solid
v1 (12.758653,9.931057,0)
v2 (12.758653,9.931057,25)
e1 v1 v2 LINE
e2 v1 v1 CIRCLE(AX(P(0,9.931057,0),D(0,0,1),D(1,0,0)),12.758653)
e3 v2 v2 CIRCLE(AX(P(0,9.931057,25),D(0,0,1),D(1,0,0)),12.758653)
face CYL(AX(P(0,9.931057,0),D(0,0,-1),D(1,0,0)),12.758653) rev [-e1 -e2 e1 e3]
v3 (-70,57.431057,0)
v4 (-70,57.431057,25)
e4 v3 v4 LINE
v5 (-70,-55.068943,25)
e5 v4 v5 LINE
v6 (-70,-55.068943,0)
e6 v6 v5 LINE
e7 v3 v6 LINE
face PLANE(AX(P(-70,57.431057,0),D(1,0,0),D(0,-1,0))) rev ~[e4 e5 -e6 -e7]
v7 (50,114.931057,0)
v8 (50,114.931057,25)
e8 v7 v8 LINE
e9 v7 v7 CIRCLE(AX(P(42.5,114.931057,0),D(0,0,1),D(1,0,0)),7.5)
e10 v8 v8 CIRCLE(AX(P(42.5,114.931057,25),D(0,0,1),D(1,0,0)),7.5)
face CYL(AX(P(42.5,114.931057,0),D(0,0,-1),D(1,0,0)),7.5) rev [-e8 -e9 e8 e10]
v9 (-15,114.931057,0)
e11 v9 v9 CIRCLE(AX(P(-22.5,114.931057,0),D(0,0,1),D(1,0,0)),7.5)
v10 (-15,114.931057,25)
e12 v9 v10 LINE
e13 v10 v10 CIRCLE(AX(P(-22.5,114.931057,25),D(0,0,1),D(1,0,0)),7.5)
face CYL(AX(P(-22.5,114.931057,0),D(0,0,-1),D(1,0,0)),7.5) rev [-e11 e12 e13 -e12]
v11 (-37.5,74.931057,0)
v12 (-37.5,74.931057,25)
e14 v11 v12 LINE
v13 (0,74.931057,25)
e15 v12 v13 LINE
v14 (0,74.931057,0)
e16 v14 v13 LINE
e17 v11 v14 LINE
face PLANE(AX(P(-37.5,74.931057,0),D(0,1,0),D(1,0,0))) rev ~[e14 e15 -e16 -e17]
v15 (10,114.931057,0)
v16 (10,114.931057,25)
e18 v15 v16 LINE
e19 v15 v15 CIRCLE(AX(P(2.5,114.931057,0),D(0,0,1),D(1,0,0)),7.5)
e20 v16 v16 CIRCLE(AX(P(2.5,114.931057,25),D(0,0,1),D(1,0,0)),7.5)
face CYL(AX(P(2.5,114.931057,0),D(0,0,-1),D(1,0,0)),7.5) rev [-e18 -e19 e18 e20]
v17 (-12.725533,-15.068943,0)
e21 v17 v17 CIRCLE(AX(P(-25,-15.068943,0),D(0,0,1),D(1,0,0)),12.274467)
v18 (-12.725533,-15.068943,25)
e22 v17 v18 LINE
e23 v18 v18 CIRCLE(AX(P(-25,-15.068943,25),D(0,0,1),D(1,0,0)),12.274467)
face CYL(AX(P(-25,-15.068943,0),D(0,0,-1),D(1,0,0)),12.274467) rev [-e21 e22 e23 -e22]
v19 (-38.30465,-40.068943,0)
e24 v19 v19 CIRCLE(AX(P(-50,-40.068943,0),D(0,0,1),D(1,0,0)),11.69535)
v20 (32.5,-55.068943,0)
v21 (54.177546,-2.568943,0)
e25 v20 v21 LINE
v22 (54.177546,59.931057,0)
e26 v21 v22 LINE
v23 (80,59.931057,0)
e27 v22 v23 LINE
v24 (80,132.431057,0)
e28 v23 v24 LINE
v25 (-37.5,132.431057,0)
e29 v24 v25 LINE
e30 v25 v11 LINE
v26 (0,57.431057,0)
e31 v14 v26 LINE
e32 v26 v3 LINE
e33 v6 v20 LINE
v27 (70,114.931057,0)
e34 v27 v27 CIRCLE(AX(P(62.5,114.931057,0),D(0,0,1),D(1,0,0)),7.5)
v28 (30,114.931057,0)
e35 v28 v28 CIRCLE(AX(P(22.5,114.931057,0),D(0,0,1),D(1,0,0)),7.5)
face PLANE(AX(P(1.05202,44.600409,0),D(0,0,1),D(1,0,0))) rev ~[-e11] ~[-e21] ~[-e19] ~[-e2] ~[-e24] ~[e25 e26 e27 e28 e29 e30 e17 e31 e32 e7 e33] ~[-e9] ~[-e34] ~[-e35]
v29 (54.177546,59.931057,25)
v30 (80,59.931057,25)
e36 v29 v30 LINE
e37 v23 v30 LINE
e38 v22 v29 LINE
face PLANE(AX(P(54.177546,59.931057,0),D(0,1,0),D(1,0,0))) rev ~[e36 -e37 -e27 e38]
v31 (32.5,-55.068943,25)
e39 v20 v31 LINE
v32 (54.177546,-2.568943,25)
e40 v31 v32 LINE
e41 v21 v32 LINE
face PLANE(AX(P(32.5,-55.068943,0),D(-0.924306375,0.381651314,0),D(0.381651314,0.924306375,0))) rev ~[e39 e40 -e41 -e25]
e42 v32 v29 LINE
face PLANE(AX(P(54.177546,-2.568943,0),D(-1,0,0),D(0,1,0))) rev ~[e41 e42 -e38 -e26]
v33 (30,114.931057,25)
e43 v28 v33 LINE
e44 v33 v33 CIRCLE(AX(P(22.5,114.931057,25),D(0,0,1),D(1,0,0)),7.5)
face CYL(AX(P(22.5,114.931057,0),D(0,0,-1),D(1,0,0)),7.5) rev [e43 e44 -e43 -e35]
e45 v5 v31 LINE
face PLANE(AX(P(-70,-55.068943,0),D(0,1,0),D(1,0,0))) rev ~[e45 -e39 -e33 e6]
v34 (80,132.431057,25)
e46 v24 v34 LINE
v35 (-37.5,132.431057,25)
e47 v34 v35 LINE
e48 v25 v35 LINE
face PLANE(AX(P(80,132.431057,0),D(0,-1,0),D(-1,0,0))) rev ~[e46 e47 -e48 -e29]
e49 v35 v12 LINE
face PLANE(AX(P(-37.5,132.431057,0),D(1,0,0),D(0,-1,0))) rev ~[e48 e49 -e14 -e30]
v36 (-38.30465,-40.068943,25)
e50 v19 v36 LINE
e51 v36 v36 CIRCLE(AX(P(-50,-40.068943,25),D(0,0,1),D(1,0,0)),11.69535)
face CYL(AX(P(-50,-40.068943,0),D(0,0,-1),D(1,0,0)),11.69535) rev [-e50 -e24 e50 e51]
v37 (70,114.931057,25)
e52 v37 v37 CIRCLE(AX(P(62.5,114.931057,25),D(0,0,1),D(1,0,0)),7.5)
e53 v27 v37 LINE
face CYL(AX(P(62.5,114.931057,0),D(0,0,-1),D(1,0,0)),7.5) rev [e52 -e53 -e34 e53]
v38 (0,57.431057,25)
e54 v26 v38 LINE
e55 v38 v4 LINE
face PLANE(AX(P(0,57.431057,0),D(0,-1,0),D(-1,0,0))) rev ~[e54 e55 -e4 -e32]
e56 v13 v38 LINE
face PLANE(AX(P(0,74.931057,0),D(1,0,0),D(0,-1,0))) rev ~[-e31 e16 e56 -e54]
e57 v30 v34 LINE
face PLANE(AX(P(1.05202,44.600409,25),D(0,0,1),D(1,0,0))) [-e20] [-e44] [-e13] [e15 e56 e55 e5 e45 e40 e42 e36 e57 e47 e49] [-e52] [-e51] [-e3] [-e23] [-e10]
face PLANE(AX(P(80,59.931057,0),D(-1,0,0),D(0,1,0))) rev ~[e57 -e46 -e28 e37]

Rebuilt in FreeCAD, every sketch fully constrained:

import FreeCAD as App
import Part
import Sketcher
from FreeCAD import Vector


def add_polygon(sketch, points):
    """Adds a closed chain of lines whose ends are joined by coincident constraints."""
    first, n = sketch.GeometryCount, len(points)
    for a, b in zip(points, points[1:] + points[:1]):
        sketch.addGeometry(Part.LineSegment(App.Vector(*a, 0), App.Vector(*b, 0)), False)
    for i in range(n):
        sketch.addConstraint(Sketcher.Constraint("Coincident", first + i, 2, first + (i + 1) % n, 1))

doc = App.newDocument("Part")
body = doc.addObject("PartDesign::Body", "Body")

# Sketch on XY plane
sketch1 = doc.addObject("Sketcher::SketchObject", "Sketch")
body.addObject(sketch1)
sketch1.AttachmentSupport = (doc.XY_Plane, [""])
sketch1.MapMode = "FlatFace"
add_polygon(sketch1, [(-70, 57), (-70, -55), (32, -55), (54, -3), (54, 60), (80, 60), (80, 132), (-38, 132), (-38, 75), (0, 75), (0, 57)])  # lines 0-10
sketch1.addGeometry(Part.Circle(Vector(-50, -40, 0), Vector(0, 0, 1), 12), False)  # 11
sketch1.addGeometry(Part.Circle(Vector(-25, -15, 0), Vector(0, 0, 1), 12), False)  # 12
sketch1.addGeometry(Part.Circle(Vector(0, 10, 0), Vector(0, 0, 1), 13), False)  # 13
sketch1.addGeometry(Part.Circle(Vector(-22, 115, 0), Vector(0, 0, 1), 8), False)  # 14
sketch1.addGeometry(Part.Circle(Vector(2, 115, 0), Vector(0, 0, 1), 8), False)  # 15
sketch1.addGeometry(Part.Circle(Vector(22, 115, 0), Vector(0, 0, 1), 8), False)  # 16
sketch1.addGeometry(Part.Circle(Vector(42, 115, 0), Vector(0, 0, 1), 8), False)  # 17
sketch1.addGeometry(Part.Circle(Vector(62, 115, 0), Vector(0, 0, 1), 8), False)  # 18
sketch1.addConstraint(Sketcher.Constraint("Vertical", 0))
sketch1.addConstraint(Sketcher.Constraint("Horizontal", 1))
sketch1.addConstraint(Sketcher.Constraint("Vertical", 3))
sketch1.addConstraint(Sketcher.Constraint("Horizontal", 4))
sketch1.addConstraint(Sketcher.Constraint("Vertical", 5))
sketch1.addConstraint(Sketcher.Constraint("Horizontal", 6))
sketch1.addConstraint(Sketcher.Constraint("Vertical", 7))
sketch1.addConstraint(Sketcher.Constraint("Horizontal", 8))
sketch1.addConstraint(Sketcher.Constraint("Vertical", 9))
sketch1.addConstraint(Sketcher.Constraint("Horizontal", 10))
sketch1.addConstraint(Sketcher.Constraint("Equal", 14, 15))
sketch1.addConstraint(Sketcher.Constraint("Equal", 15, 16))
sketch1.addConstraint(Sketcher.Constraint("Equal", 16, 17))
sketch1.addConstraint(Sketcher.Constraint("Equal", 17, 18))
sketch1.addConstraint(Sketcher.Constraint("Symmetric", 14, 3, 16, 3, -2))
sketch1.addConstraint(Sketcher.Constraint("PointOnObject", 13, 3, -2))
sketch1.addConstraint(Sketcher.Constraint("PointOnObject", 8, 2, -2))
sketch1.addConstraint(Sketcher.Constraint("Horizontal", 14, 3, 15, 3))
sketch1.addConstraint(Sketcher.Constraint("Horizontal", 16, 3, 17, 3))
sketch1.addConstraint(Sketcher.Constraint("Horizontal", 17, 3, 18, 3))
sketch1.addConstraint(Sketcher.Constraint("Diameter", 14, 15.0))
sketch1.addConstraint(Sketcher.Constraint("DistanceX", 10, 2, 10, 1, 70.0))
sketch1.addConstraint(Sketcher.Constraint("DistanceX", 1, 1, 1, 2, 102.5))
sketch1.addConstraint(Sketcher.Constraint("DistanceX", 6, 2, 6, 1, 117.5))
sketch1.addConstraint(Sketcher.Constraint("DistanceX", 8, 1, 8, 2, 37.5))
sketch1.addConstraint(Sketcher.Constraint("DistanceY", 0, 2, 0, 1, 112.5))
sketch1.addConstraint(Sketcher.Constraint("DistanceY", 3, 1, 3, 2, 62.5))
sketch1.addConstraint(Sketcher.Constraint("DistanceY", 5, 1, 5, 2, 72.5))
sketch1.addConstraint(Sketcher.Constraint("DistanceY", 7, 2, 7, 1, 57.5))
sketch1.addConstraint(Sketcher.Constraint("DistanceY", 9, 2, 9, 1, 17.5))
sketch1.addConstraint(Sketcher.Constraint("DistanceX", 11, 3, -1, 1, 50.0))
sketch1.addConstraint(Sketcher.Constraint("DistanceX", 12, 3, -1, 1, 25.0))
sketch1.addConstraint(Sketcher.Constraint("DistanceY", 11, 3, 12, 3, 25.0))
sketch1.addConstraint(Sketcher.Constraint("DistanceY", 12, 3, 13, 3, 25.0))
sketch1.addConstraint(Sketcher.Constraint("DistanceY", 13, 3, 14, 3, 105.0))
sketch1.addConstraint(Sketcher.Constraint("DistanceX", 14, 3, 15, 3, 25.0))
sketch1.addConstraint(Sketcher.Constraint("DistanceX", 15, 3, 16, 3, 20.0))
sketch1.addConstraint(Sketcher.Constraint("DistanceX", 16, 3, 17, 3, 20.0))
sketch1.addConstraint(Sketcher.Constraint("DistanceX", 17, 3, 18, 3, 20.0))
sketch1.addConstraint(Sketcher.Constraint("DistanceY", 0, 2, 11, 3, 15.0))
sketch1.addConstraint(Sketcher.Constraint("Diameter", 11, 23.3907))
sketch1.addConstraint(Sketcher.Constraint("Diameter", 12, 24.548934))
sketch1.addConstraint(Sketcher.Constraint("Diameter", 13, 25.517306))
sketch1.addConstraint(Sketcher.Constraint("Distance", 2, 56.799349))
sketch1.addConstraint(Sketcher.Constraint("DistanceY", 11, 3, -1, 1, 40.068943))
pad1 = doc.addObject("PartDesign::Pad", "Pad")
body.addObject(pad1)
pad1.Profile = sketch1
pad1.Length = 25

doc.recompute()
